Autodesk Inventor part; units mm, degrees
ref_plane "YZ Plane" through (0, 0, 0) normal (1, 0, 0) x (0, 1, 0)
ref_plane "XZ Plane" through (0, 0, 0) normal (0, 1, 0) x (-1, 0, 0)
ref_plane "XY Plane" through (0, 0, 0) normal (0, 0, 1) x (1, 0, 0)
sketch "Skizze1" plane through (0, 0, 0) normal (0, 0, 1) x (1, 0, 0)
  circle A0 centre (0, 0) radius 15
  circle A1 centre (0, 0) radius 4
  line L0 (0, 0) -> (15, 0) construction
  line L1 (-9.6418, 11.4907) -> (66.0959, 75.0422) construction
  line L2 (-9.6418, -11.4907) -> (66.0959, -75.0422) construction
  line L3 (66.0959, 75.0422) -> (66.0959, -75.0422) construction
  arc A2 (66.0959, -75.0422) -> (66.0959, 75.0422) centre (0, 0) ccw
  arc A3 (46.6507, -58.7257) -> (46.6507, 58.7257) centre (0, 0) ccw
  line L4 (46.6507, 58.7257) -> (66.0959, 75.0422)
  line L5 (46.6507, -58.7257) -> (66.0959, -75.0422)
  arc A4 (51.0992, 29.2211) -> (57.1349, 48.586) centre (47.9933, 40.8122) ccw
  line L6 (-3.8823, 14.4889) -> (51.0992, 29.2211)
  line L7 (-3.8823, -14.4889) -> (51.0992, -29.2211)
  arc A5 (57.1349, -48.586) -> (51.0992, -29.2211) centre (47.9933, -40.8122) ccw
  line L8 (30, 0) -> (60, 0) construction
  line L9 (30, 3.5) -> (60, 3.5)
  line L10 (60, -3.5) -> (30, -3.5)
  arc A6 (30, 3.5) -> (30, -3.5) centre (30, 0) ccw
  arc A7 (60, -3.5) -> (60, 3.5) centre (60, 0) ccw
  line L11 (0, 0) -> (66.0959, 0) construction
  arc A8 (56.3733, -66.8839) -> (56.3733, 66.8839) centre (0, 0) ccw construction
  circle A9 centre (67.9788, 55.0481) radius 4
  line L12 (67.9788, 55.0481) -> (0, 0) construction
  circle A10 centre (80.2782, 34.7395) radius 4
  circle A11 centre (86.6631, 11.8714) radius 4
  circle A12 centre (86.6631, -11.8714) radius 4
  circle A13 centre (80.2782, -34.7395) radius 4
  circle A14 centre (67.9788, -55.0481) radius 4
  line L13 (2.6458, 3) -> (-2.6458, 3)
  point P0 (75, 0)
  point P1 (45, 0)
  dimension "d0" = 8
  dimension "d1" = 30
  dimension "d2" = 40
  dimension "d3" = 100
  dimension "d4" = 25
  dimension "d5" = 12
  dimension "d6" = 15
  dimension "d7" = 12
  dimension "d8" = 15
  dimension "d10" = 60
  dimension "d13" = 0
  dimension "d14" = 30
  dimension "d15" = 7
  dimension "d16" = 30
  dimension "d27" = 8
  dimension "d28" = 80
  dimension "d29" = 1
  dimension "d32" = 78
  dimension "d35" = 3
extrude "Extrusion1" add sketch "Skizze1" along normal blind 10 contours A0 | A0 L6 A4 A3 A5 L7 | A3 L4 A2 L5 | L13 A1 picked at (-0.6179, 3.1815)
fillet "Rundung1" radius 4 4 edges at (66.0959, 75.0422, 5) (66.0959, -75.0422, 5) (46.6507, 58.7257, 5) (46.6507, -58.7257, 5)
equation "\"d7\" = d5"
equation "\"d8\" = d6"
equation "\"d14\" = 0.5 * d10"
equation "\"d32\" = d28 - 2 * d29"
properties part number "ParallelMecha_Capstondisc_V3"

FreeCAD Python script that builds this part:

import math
import FreeCAD as App
import Part
import Sketcher

V = App.Vector
Q = App.Units.Quantity


def edges_at(feature, points):
    """Names of the edges that pass closest to the given points."""
    edges = feature.Shape.Edges
    near = lambda p: min(range(len(edges)), key=lambda i: edges[i].distToShape(Part.Vertex(*p))[0])
    return sorted({f"Edge{near(p) + 1}" for p in points})

doc = App.newDocument("Part")
params = doc.addObject("Spreadsheet::Sheet", "Params")
for row, (alias, value) in enumerate([
    ("sketch1_diameter", "8 mm"),
    ("sketch1_radius", "15 mm"),
    ("sketch1_radius2", "12 mm"),
    ("sketch1_radius3", "100 mm"),
    ("sketch1_radius4", "3.5 mm"),
    ("pad1_length", "10 mm"),
    ("fillet_radius", "4 mm"),
], start=1):
    params.set(f"A{row}", alias)
    params.set(f"B{row}", "=" + value)
    params.setAlias(f"B{row}", alias)

body = doc.addObject("PartDesign::Body", "Body")

# Sketch on XY plane
sketch1 = body.newObject("Sketcher::SketchObject", "Sketch")
sketch1.AttachmentSupport = (doc.getObject("XY_Plane"), [""])
sketch1.MapMode = "FlatFace"
sketch1.addGeometry([
    Part.ArcOfCircle(Part.Circle(V(0, 0, 0), V(0, 0, 1), 15), math.radians(105), math.radians(255)),  # 0
    Part.LineSegment(V(-3.9, -14.5, 0), V(51.1, -29.2, 0)),  # 1
    Part.ArcOfCircle(Part.Circle(V(48, -40.8, 0), V(0, 0, 1), 12), math.radians(-40), math.radians(75)),  # 2
    Part.ArcOfCircle(Part.Circle(V(0, 0, 0), V(0, 0, 1), 75), math.radians(-51.54), math.radians(-40.38)),  # 3
    Part.LineSegment(V(46.7, -58.7, 0), V(66.1, -75, 0)),  # 4
    Part.ArcOfCircle(Part.Circle(V(0, 0, 0), V(0, 0, 1), 100), math.radians(-49), math.radians(49)),  # 5
    Part.LineSegment(V(66.1, 75, 0), V(46.7, 58.7, 0)),  # 6
    Part.ArcOfCircle(Part.Circle(V(0, 0, 0), V(0, 0, 1), 75), math.radians(40.38), math.radians(51.54)),  # 7
    Part.ArcOfCircle(Part.Circle(V(48, 40.8, 0), V(0, 0, 1), 12), math.radians(-75), math.radians(40)),  # 8
    Part.LineSegment(V(51.1, 29.2, 0), V(-3.9, 14.5, 0)),  # 9
    Part.ArcOfCircle(Part.Circle(V(0, 0, 0), V(0, 0, 1), 4), math.radians(131), math.radians(409)),  # 10
    Part.LineSegment(V(2.6, 3, 0), V(-2.6, 3, 0)),  # 11
    Part.ArcOfCircle(Part.Circle(V(60, 0, 0), V(0, 0, 1), 3.5), math.radians(-90), math.radians(90)),  # 12
    Part.LineSegment(V(60, -3.5, 0), V(30, -3.5, 0)),  # 13
    Part.ArcOfCircle(Part.Circle(V(30, 0, 0), V(0, 0, 1), 3.5), math.radians(90), math.radians(270)),  # 14
    Part.LineSegment(V(30, 3.5, 0), V(60, 3.5, 0)),  # 15
    Part.Circle(V(68, 55, 0), V(0, 0, 1), 4),  # 16
    Part.Circle(V(68, -55, 0), V(0, 0, 1), 4),  # 17
    Part.Circle(V(80.3, -34.7, 0), V(0, 0, 1), 4),  # 18
    Part.Circle(V(86.7, -11.9, 0), V(0, 0, 1), 4),  # 19
    Part.Circle(V(86.7, 11.9, 0), V(0, 0, 1), 4),  # 20
    Part.Circle(V(80.3, 34.7, 0), V(0, 0, 1), 4),  # 21
], False)
sketch1.addConstraint([
    Sketcher.Constraint("Tangent", 0, 2, 1, 1),
    Sketcher.Constraint("Tangent", 1, 2, 2, 2),
    Sketcher.Constraint("Tangent", 2, 1, 3, 2),
    Sketcher.Constraint("Coincident", 3, 1, 4, 1),
    Sketcher.Constraint("Coincident", 4, 2, 5, 1),
    Sketcher.Constraint("Coincident", 5, 2, 6, 1),
    Sketcher.Constraint("Coincident", 6, 2, 7, 2),
    Sketcher.Constraint("Tangent", 7, 1, 8, 2),
    Sketcher.Constraint("Tangent", 8, 1, 9, 1),
    Sketcher.Constraint("Tangent", 9, 2, 0, 1),
    Sketcher.Constraint("Coincident", 10, 1, 11, 2),
    Sketcher.Constraint("Coincident", 11, 1, 10, 2),
    Sketcher.Constraint("Tangent", 12, 1, 13, 1),
    Sketcher.Constraint("Tangent", 13, 2, 14, 2),
    Sketcher.Constraint("Tangent", 14, 1, 15, 1),
    Sketcher.Constraint("Tangent", 15, 2, 12, 2),
    Sketcher.Constraint("Horizontal", 11),
    Sketcher.Constraint("Horizontal", 13),
    Sketcher.Constraint("Horizontal", 15),
    Sketcher.Constraint("Coincident", 0, 3, -1, 1),
    Sketcher.Constraint("Coincident", 3, 3, -1, 1),
    Sketcher.Constraint("Coincident", 5, 3, -1, 1),
    Sketcher.Constraint("Coincident", 7, 3, -1, 1),
    Sketcher.Constraint("Coincident", 10, 3, -1, 1),
    Sketcher.Constraint("Equal", 3, 7),
    Sketcher.Constraint("Equal", 2, 8),
    Sketcher.Constraint("Equal", 10, 16),
    Sketcher.Constraint("Equal", 16, 17),
    Sketcher.Constraint("Equal", 17, 18),
    Sketcher.Constraint("Equal", 18, 19),
    Sketcher.Constraint("Equal", 19, 20),
    Sketcher.Constraint("Equal", 20, 21),
    Sketcher.Constraint("Symmetric", 16, 3, 17, 3, -1),
    Sketcher.Constraint("Symmetric", 19, 3, 20, 3, -1),
    Sketcher.Constraint("Symmetric", 18, 3, 21, 3, -1),
    Sketcher.Constraint("PointOnObject", 12, 3, -1),
    Sketcher.Constraint("Vertical", 2, 3, 8, 3),
    Sketcher.Constraint("Vertical", 4, 2, 5, 2),
    Sketcher.Constraint("Vertical", 3, 1, 6, 2),
    Sketcher.Constraint("Diameter", 16, 8.0),
    Sketcher.Constraint("Radius", 0, 15.0),
    Sketcher.Constraint("Radius", 2, 12.0),
    Sketcher.Constraint("Radius", 5, 100.0),
    Sketcher.Constraint("Radius", 12, 3.5),
    Sketcher.Constraint("DistanceX", 13, 2, 13, 1, 30.0),
    Sketcher.Constraint("Angle", 1, Q("-15 deg")),
    Sketcher.Constraint("Angle", 4, Q("-40 deg")),
    Sketcher.Constraint("DistanceX", -1, 1, 12, 3, 60.0),
    Sketcher.Constraint("DistanceY", -1, 1, 10, 1, 3.0),
    Sketcher.Constraint("Radius", 3, 75.0),
    Sketcher.Constraint("DistanceY", 4, 2, 2, 3, 34.23),
    Sketcher.Constraint("DistanceY", -1, 1, 16, 3, 55.048),
    Sketcher.Constraint("DistanceX", -1, 1, 19, 3, 86.663),
    Sketcher.Constraint("DistanceX", 2, 3, 18, 3, 32.285),
    Sketcher.Constraint("DistanceY", 18, 3, 19, 3, 22.868),
    Sketcher.Constraint("DistanceY", 18, 3, 20, 3, 46.611),
    Sketcher.Constraint("DistanceX", 2, 1, 17, 3, 10.844),
])
sketch1.setExpression("Constraints[39]", "Params.sketch1_diameter")
sketch1.setExpression("Constraints[40]", "Params.sketch1_radius")
sketch1.setExpression("Constraints[41]", "Params.sketch1_radius2")
sketch1.setExpression("Constraints[42]", "Params.sketch1_radius3")
sketch1.setExpression("Constraints[43]", "Params.sketch1_radius4")
pad1 = body.newObject("PartDesign::Pad", "Pad")
pad1.Profile = sketch1
pad1.setExpression("Length", "Params.pad1_length")
doc.recompute()

fillet = body.newObject("PartDesign::Fillet", "Fillet")
fillet.Base = (pad1, edges_at(pad1, [
    (66.096, 75.042, 5),
    (66.096, -75.042, 5),
    (46.651, 58.726, 5),
    (46.651, -58.726, 5),
]))
fillet.setExpression("Radius", "Params.fillet_radius")

doc.recompute()
